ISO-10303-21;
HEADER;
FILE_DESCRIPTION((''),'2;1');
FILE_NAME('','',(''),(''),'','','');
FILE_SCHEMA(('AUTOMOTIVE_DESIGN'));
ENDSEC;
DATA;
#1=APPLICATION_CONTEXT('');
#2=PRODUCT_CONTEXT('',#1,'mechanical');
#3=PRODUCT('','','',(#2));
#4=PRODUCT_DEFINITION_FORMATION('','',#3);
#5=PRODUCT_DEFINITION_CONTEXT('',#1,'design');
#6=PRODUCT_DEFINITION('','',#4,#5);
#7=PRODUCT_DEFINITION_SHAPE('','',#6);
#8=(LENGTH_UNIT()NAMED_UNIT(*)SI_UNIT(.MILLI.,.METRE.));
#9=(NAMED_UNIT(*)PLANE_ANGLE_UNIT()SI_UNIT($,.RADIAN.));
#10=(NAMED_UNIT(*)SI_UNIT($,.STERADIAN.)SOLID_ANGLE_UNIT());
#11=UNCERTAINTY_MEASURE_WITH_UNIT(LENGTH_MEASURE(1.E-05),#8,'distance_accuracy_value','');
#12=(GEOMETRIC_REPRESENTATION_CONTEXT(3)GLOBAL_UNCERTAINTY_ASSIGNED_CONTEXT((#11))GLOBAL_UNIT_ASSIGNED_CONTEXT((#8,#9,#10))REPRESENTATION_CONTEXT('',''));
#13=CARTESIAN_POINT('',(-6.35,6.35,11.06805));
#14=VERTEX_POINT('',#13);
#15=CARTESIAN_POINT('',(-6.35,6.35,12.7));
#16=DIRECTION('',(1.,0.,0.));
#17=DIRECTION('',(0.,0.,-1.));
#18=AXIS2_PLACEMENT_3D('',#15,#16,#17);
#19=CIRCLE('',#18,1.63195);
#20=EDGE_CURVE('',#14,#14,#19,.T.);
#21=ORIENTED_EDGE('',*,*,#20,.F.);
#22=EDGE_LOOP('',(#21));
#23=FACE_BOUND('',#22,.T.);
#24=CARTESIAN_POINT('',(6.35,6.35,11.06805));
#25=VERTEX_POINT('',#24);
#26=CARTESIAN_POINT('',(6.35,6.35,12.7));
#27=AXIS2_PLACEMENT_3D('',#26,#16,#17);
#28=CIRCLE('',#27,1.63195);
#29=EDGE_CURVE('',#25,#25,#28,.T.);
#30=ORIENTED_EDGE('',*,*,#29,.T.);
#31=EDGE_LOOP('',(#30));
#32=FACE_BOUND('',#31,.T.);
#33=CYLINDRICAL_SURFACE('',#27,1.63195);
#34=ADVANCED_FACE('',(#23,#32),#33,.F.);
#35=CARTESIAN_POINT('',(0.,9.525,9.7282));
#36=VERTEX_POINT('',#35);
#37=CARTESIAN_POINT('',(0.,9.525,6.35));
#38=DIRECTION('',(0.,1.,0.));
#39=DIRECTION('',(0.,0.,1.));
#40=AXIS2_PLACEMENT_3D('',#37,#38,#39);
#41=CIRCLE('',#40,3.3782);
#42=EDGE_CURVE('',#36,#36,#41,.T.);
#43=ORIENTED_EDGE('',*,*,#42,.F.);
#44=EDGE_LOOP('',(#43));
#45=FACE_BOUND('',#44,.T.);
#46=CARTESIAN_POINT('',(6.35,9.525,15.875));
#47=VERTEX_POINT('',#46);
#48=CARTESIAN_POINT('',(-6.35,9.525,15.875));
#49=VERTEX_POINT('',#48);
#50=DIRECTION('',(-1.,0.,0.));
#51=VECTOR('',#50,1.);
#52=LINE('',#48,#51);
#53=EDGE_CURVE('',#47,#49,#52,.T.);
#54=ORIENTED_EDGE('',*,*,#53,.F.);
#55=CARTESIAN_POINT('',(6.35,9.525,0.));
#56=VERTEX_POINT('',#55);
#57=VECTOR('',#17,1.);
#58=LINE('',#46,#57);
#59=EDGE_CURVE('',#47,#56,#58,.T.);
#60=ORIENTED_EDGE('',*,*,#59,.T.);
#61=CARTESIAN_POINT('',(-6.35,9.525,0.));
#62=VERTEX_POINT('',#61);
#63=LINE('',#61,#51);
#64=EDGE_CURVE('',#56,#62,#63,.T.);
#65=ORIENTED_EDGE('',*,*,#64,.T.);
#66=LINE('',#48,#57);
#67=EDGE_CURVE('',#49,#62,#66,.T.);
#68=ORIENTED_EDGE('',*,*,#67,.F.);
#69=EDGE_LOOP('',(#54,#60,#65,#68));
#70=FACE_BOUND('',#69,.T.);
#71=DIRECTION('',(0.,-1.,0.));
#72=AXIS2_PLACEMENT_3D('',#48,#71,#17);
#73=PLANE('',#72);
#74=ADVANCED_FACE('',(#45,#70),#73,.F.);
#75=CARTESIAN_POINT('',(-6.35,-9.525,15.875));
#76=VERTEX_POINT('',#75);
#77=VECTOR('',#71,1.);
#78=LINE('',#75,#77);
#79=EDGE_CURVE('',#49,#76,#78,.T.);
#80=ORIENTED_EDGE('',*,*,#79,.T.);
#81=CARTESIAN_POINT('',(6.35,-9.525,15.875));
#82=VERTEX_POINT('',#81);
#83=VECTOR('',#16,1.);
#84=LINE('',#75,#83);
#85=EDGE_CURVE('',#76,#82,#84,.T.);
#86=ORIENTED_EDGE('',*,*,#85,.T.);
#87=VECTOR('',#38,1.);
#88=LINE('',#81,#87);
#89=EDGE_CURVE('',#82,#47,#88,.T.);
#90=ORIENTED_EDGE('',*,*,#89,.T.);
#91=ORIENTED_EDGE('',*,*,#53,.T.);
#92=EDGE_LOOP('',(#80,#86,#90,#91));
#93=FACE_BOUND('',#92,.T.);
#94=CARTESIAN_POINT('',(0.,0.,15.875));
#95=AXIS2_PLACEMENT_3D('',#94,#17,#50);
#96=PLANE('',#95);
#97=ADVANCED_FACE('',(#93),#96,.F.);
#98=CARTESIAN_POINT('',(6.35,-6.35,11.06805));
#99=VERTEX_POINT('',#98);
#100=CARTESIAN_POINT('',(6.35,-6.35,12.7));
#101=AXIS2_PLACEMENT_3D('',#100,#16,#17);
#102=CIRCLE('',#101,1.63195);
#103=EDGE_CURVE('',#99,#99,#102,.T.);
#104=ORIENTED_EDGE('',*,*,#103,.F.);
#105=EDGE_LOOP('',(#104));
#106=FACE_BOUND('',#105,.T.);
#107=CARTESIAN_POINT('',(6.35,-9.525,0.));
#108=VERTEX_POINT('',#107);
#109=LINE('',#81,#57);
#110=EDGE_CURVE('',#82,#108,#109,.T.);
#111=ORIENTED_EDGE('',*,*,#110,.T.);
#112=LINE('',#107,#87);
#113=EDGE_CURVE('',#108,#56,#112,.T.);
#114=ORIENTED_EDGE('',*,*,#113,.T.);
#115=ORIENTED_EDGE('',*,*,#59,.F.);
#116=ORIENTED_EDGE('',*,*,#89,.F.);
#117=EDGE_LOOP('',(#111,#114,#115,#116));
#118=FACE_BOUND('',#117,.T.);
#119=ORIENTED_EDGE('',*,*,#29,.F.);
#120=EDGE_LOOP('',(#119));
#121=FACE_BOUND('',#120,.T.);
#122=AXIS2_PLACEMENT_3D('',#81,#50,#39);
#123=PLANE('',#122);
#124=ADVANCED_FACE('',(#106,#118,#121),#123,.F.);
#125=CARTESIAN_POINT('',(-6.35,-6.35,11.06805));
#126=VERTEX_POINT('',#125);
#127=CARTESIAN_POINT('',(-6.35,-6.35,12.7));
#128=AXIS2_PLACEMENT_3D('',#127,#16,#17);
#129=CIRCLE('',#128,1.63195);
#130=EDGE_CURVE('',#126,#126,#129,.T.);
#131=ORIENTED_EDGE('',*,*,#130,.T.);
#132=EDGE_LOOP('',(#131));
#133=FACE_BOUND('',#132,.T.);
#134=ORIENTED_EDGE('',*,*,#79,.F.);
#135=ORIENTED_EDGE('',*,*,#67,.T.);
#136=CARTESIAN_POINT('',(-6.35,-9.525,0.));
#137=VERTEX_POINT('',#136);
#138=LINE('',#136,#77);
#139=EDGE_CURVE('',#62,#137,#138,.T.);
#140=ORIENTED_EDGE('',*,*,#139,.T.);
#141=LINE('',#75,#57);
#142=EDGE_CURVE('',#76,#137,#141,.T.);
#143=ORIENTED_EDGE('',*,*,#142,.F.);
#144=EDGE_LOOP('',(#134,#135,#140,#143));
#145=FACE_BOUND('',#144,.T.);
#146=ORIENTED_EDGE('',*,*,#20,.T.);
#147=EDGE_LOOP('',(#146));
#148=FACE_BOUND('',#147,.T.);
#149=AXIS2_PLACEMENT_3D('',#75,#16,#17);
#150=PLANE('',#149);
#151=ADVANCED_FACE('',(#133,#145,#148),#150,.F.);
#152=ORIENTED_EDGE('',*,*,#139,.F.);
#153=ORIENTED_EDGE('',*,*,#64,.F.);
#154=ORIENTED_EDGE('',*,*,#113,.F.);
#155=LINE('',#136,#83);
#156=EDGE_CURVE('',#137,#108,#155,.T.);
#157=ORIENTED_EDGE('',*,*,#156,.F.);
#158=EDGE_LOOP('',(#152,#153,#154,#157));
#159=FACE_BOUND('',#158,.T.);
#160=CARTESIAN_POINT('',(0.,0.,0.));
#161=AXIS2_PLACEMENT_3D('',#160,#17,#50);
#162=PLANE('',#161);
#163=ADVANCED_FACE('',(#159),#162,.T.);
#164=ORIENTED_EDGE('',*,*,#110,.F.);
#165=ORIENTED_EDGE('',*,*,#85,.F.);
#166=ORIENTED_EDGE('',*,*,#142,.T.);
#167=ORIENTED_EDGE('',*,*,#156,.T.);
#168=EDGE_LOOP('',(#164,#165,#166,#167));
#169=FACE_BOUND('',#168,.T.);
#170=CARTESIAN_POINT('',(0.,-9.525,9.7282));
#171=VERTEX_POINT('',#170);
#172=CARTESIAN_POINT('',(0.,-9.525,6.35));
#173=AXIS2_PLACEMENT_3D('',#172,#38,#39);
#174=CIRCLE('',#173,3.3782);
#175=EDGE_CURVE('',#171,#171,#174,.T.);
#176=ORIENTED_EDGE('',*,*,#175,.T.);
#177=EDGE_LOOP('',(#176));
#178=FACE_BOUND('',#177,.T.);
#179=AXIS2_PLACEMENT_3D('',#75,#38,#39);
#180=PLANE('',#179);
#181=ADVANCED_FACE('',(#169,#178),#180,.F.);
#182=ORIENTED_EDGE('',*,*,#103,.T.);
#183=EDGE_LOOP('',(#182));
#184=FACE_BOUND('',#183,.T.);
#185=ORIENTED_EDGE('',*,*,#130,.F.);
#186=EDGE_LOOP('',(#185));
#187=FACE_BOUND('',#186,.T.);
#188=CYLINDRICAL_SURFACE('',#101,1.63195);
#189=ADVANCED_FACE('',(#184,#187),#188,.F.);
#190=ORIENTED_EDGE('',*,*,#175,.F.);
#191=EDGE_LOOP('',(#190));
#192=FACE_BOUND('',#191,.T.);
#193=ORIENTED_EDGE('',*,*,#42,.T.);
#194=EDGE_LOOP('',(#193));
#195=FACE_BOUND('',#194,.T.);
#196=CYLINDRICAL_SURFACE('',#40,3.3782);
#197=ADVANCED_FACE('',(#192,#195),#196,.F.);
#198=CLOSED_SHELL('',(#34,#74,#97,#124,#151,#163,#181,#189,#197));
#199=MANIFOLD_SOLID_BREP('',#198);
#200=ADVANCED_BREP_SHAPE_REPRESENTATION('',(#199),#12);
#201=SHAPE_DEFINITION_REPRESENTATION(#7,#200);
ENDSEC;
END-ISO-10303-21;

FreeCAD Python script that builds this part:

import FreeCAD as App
import Part
import Sketcher

V = App.Vector
Q = App.Units.Quantity

doc = App.newDocument("Part")
body = doc.addObject("PartDesign::Body", "Body")

sketch1 = body.newObject("Sketcher::SketchObject", "Sketch")
sketch1.AttachmentSupport = (doc.getObject("XY_Plane"), [""])
sketch1.MapMode = "FlatFace"
sketch1.addGeometry([
    Part.LineSegment(V(-6, 10, 0), V(-6, -10, 0)),
    Part.LineSegment(V(-6, -10, 0), V(6, -10, 0)),
    Part.LineSegment(V(6, -10, 0), V(6, 10, 0)),
    Part.LineSegment(V(6, 10, 0), V(-6, 10, 0)),
], False)
sketch1.addConstraint([
    Sketcher.Constraint("Coincident", 0, 2, 1, 1),
    Sketcher.Constraint("Coincident", 1, 2, 2, 1),
    Sketcher.Constraint("Coincident", 2, 2, 3, 1),
    Sketcher.Constraint("Coincident", 3, 2, 0, 1),
    Sketcher.Constraint("Vertical", 0),
    Sketcher.Constraint("Horizontal", 1),
    Sketcher.Constraint("Vertical", 2),
    Sketcher.Constraint("Horizontal", 3),
    Sketcher.Constraint("Symmetric", 0, 2, 2, 2, -1, 1),
    Sketcher.Constraint("DistanceX", 1, 1, 1, 2, Q("0.5 in")),
    Sketcher.Constraint("DistanceY", 0, 2, 0, 1, Q("0.75 in")),
])
pad1 = body.newObject("PartDesign::Pad", "Pad")
pad1.Profile = sketch1
pad1.Length = Q("0.625 in")

sketch2 = body.newObject("Sketcher::SketchObject", "Sketch001")
sketch2.AttachmentSupport = (doc.getObject("XZ_Plane"), [""])
sketch2.MapMode = "FlatFace"
sketch2.AttachmentOffset = App.Placement(V(0, 0, -0.375 * 25.4), App.Rotation())
sketch2.addGeometry(Part.Circle(V(0, 6.3, 0), V(0, 0, 1), 3.4), False)
sketch2.addConstraint([
    Sketcher.Constraint("PointOnObject", 0, 3, -2),
    Sketcher.Constraint("Diameter", 0, Q("0.266 in")),
    Sketcher.Constraint("DistanceY", -1, 1, 0, 3, Q("0.25 in")),
])
doc.recompute()
hole = body.newObject("PartDesign::Hole", "Hole")
hole.Profile = sketch2
hole.ThreadType = "None"
hole.Diameter = Q("0.266 in")
hole.DepthType = "ThroughAll"
hole.Reversed = True

sketch3 = body.newObject("Sketcher::SketchObject", "Sketch002")
sketch3.AttachmentSupport = (doc.getObject("YZ_Plane"), [""])
sketch3.MapMode = "FlatFace"
sketch3.AttachmentOffset = App.Placement(V(0, 0, 0.25 * 25.4), App.Rotation())
sketch3.addGeometry([
    Part.Circle(V(6.3, 12.7, 0), V(0, 0, 1), 1.6),
    Part.Circle(V(-6.3, 12.7, 0), V(0, 0, 1), 1.6),
], False)
sketch3.addConstraint([
    Sketcher.Constraint("Equal", 0, 1),
    Sketcher.Constraint("Symmetric", 0, 3, 1, 3, -2),
    Sketcher.Constraint("Diameter", 0, Q("0.1285 in")),
    Sketcher.Constraint("DistanceY", -1, 1, 0, 3, Q("0.5 in")),
    Sketcher.Constraint("DistanceX", 1, 3, 0, 3, Q("0.5 in")),
])
doc.recompute()
hole2 = body.newObject("PartDesign::Hole", "Hole001")
hole2.Profile = sketch3
hole2.ThreadType = "None"
hole2.Diameter = Q("0.1285 in")
hole2.DepthType = "ThroughAll"

doc.recompute()
